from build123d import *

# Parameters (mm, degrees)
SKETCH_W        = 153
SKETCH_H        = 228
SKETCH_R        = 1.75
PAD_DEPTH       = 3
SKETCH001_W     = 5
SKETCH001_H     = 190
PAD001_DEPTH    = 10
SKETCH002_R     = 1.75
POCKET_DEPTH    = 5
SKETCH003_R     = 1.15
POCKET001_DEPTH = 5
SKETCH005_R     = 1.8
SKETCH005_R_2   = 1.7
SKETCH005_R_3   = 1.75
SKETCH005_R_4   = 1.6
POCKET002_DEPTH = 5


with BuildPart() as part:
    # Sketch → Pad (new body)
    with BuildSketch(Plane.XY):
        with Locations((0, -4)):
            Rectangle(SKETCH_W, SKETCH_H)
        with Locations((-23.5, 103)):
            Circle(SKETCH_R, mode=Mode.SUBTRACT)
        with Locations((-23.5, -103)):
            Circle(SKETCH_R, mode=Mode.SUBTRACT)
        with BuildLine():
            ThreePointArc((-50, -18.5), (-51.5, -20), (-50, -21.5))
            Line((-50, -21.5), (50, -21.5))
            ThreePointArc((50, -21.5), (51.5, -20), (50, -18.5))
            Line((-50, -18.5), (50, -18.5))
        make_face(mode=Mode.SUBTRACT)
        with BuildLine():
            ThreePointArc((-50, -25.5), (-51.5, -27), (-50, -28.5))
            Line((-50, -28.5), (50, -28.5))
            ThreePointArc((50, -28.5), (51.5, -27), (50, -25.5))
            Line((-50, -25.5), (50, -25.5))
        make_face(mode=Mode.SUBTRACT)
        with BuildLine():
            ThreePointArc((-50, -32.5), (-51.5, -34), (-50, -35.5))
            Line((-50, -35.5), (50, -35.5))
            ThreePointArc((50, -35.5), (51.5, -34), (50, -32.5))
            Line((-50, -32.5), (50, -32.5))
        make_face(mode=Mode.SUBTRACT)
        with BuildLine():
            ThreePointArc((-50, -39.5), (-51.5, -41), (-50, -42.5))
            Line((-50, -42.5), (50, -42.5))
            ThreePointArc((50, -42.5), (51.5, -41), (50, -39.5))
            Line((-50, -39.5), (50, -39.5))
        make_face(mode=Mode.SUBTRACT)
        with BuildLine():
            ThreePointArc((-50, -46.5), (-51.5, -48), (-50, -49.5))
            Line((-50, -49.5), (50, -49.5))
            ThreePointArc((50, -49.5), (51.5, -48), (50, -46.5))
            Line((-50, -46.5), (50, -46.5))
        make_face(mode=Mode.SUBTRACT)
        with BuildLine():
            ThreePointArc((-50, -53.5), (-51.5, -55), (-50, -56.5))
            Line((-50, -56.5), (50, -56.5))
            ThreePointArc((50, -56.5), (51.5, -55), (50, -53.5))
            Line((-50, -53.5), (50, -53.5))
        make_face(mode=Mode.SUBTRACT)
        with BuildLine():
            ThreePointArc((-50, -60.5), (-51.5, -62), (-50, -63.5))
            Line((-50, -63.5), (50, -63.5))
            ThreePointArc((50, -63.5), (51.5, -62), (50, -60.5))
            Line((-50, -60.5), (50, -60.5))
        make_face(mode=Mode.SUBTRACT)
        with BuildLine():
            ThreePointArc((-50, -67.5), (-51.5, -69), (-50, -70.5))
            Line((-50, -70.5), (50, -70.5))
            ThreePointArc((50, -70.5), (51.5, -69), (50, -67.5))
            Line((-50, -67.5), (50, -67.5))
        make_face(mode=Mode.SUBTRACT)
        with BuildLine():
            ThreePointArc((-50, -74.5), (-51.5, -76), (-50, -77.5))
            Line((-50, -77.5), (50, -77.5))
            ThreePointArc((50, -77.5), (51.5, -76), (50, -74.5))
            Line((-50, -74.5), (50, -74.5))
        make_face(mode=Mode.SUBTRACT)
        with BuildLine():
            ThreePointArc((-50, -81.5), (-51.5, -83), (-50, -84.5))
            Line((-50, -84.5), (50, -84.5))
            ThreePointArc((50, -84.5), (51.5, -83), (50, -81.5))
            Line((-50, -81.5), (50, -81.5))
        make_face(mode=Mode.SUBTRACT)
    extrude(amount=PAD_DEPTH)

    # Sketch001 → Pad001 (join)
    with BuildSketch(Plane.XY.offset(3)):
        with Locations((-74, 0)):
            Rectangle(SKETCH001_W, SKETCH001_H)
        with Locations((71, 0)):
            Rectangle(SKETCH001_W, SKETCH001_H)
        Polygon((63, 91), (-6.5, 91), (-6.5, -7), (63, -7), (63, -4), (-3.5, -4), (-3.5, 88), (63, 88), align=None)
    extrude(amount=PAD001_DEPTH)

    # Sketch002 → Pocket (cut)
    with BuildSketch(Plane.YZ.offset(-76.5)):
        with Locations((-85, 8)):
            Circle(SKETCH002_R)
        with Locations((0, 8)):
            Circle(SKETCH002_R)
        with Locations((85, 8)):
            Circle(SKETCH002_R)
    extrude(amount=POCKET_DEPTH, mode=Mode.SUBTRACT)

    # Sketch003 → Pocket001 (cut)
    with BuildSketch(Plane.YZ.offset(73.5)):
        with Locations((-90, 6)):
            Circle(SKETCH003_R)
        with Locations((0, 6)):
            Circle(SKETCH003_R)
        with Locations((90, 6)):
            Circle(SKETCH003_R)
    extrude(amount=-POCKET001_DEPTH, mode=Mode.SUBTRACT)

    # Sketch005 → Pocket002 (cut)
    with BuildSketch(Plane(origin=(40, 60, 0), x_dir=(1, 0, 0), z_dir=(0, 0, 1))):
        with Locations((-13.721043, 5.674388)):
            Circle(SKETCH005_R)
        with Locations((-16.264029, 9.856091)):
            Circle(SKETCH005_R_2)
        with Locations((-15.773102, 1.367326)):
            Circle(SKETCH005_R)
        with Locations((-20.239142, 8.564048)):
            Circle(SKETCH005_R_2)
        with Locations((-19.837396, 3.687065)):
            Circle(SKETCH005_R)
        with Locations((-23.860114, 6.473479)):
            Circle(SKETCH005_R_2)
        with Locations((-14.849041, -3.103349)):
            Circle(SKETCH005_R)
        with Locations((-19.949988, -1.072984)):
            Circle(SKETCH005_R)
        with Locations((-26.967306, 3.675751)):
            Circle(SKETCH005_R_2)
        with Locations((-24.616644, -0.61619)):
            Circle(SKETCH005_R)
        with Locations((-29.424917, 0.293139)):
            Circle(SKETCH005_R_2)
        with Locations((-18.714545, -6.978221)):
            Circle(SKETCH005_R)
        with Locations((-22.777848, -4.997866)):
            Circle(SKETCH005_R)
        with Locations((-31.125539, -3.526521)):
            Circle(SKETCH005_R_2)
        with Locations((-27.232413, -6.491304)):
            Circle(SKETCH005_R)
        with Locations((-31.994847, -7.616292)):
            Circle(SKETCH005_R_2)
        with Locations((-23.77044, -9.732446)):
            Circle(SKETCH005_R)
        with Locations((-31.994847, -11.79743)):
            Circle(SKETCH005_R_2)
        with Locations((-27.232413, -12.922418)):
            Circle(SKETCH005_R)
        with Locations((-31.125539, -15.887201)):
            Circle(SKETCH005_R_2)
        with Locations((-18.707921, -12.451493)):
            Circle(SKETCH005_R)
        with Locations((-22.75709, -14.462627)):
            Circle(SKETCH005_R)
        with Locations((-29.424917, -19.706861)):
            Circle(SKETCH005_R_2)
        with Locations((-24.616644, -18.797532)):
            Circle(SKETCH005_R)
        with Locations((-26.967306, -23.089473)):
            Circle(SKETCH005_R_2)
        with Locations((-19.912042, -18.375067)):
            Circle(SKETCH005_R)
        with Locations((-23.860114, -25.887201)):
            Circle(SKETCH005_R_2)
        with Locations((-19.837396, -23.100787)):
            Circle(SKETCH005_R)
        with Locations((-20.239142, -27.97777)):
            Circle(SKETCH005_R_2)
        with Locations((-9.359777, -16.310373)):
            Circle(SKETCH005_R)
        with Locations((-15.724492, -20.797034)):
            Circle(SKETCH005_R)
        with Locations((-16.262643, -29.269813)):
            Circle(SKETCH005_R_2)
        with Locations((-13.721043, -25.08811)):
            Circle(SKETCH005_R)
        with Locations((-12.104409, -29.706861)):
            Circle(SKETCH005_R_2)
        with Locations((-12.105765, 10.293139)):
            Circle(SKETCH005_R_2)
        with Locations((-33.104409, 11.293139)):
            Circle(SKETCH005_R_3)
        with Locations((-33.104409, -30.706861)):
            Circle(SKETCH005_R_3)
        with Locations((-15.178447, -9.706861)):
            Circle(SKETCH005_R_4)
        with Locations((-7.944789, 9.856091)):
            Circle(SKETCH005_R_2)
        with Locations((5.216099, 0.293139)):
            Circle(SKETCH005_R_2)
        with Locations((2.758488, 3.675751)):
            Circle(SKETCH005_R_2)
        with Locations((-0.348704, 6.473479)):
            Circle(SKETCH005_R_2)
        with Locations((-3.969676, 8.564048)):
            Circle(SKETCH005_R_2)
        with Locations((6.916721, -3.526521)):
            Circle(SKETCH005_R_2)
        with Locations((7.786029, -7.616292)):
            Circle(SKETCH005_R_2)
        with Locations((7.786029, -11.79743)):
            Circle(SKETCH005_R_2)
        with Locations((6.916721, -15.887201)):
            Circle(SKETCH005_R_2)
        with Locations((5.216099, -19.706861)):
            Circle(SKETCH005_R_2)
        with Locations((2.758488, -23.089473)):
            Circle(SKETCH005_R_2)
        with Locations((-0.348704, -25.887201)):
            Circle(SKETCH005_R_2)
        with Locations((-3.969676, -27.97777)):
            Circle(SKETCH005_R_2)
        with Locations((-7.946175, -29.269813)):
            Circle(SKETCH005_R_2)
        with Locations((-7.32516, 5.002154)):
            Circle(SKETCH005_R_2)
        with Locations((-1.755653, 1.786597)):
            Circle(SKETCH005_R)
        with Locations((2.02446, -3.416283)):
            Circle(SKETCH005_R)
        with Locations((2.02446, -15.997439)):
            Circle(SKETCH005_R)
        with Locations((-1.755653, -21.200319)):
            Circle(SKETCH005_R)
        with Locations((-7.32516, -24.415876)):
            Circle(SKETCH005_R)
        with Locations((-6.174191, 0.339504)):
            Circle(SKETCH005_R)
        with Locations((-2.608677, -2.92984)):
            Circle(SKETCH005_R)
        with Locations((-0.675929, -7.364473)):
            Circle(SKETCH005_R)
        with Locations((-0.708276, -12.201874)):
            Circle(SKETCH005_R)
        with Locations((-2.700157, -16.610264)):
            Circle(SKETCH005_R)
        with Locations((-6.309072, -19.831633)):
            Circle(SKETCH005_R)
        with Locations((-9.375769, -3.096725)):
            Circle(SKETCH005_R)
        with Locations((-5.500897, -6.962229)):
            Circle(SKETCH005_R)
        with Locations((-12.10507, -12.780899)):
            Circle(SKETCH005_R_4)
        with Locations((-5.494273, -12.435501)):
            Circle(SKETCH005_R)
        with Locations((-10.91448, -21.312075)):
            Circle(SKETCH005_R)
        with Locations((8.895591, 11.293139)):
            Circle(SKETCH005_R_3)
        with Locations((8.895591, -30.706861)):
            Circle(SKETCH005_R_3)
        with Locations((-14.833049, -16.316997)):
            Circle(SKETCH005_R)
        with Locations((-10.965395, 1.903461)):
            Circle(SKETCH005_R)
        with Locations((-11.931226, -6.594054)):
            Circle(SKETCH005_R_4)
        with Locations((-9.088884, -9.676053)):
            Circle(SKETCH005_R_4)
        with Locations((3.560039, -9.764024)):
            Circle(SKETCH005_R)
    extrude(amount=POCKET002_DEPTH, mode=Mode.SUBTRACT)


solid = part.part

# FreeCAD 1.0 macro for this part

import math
import FreeCAD as App
import Part
import Sketcher
from FreeCAD import Vector
Q = App.Units.Quantity


def add_polygon(sketch, points):
    """Adds a closed chain of lines whose ends are joined by coincident constraints."""
    first, n = sketch.GeometryCount, len(points)
    for a, b in zip(points, points[1:] + points[:1]):
        sketch.addGeometry(Part.LineSegment(App.Vector(*a, 0), App.Vector(*b, 0)), False)
    for i in range(n):
        sketch.addConstraint(Sketcher.Constraint("Coincident", first + i, 2, first + (i + 1) % n, 1))

doc = App.newDocument("Part")
body = doc.addObject("PartDesign::Body", "Body")

sketch1 = body.newObject("Sketcher::SketchObject", "Sketch")
sketch1.AttachmentSupport = (doc.getObject("XY_Plane"), [""])
sketch1.MapMode = "FlatFace"
add_polygon(sketch1, [(-76.5, 110), (-76.5, -118), (76.5, -118), (76.5, 110)])
sketch1.addGeometry(Part.Circle(Vector(-23.5, -103, 0), Vector(0, 0, 1), 1.75), False)
sketch1.addGeometry(Part.ArcOfCircle(Part.Circle(Vector(-50, -83, 0), Vector(0, 0, 1), 1.5), math.radians(90), math.radians(270)), False)
sketch1.addGeometry(Part.LineSegment(Vector(-50, -81.5, 0), Vector(50, -81.5, 0)), False)
sketch1.addGeometry(Part.ArcOfCircle(Part.Circle(Vector(50, -83, 0), Vector(0, 0, 1), 1.5), math.radians(-90), math.radians(90)), False)
sketch1.addGeometry(Part.LineSegment(Vector(50, -84.5, 0), Vector(-50, -84.5, 0)), False)
sketch1.addGeometry(Part.ArcOfCircle(Part.Circle(Vector(-50, -76, 0), Vector(0, 0, 1), 1.5), math.radians(90), math.radians(270)), False)
sketch1.addGeometry(Part.LineSegment(Vector(-50, -74.5, 0), Vector(50, -74.5, 0)), False)
sketch1.addGeometry(Part.ArcOfCircle(Part.Circle(Vector(50, -76, 0), Vector(0, 0, 1), 1.5), math.radians(-90), math.radians(90)), False)
sketch1.addGeometry(Part.LineSegment(Vector(50, -77.5, 0), Vector(-50, -77.5, 0)), False)
sketch1.addGeometry(Part.ArcOfCircle(Part.Circle(Vector(-50, -69, 0), Vector(0, 0, 1), 1.5), math.radians(90), math.radians(270)), False)
sketch1.addGeometry(Part.LineSegment(Vector(-50, -67.5, 0), Vector(50, -67.5, 0)), False)
sketch1.addGeometry(Part.ArcOfCircle(Part.Circle(Vector(50, -69, 0), Vector(0, 0, 1), 1.5), math.radians(-90), math.radians(90)), False)
sketch1.addGeometry(Part.LineSegment(Vector(50, -70.5, 0), Vector(-50, -70.5, 0)), False)
sketch1.addGeometry(Part.ArcOfCircle(Part.Circle(Vector(-50, -62, 0), Vector(0, 0, 1), 1.5), math.radians(90), math.radians(270)), False)
sketch1.addGeometry(Part.LineSegment(Vector(-50, -60.5, 0), Vector(50, -60.5, 0)), False)
sketch1.addGeometry(Part.ArcOfCircle(Part.Circle(Vector(50, -62, 0), Vector(0, 0, 1), 1.5), math.radians(-90), math.radians(90)), False)
sketch1.addGeometry(Part.LineSegment(Vector(50, -63.5, 0), Vector(-50, -63.5, 0)), False)
sketch1.addGeometry(Part.ArcOfCircle(Part.Circle(Vector(-50, -55, 0), Vector(0, 0, 1), 1.5), math.radians(90), math.radians(270)), False)
sketch1.addGeometry(Part.LineSegment(Vector(-50, -53.5, 0), Vector(50, -53.5, 0)), False)
sketch1.addGeometry(Part.ArcOfCircle(Part.Circle(Vector(50, -55, 0), Vector(0, 0, 1), 1.5), math.radians(-90), math.radians(90)), False)
sketch1.addGeometry(Part.LineSegment(Vector(50, -56.5, 0), Vector(-50, -56.5, 0)), False)
sketch1.addGeometry(Part.ArcOfCircle(Part.Circle(Vector(-50, -48, 0), Vector(0, 0, 1), 1.5), math.radians(90), math.radians(270)), False)
sketch1.addGeometry(Part.LineSegment(Vector(-50, -46.5, 0), Vector(50, -46.5, 0)), False)
sketch1.addGeometry(Part.ArcOfCircle(Part.Circle(Vector(50, -48, 0), Vector(0, 0, 1), 1.5), math.radians(-90), math.radians(90)), False)
sketch1.addGeometry(Part.LineSegment(Vector(50, -49.5, 0), Vector(-50, -49.5, 0)), False)
sketch1.addGeometry(Part.ArcOfCircle(Part.Circle(Vector(-50, -41, 0), Vector(0, 0, 1), 1.5), math.radians(90), math.radians(270)), False)
sketch1.addGeometry(Part.LineSegment(Vector(-50, -39.5, 0), Vector(50, -39.5, 0)), False)
sketch1.addGeometry(Part.ArcOfCircle(Part.Circle(Vector(50, -41, 0), Vector(0, 0, 1), 1.5), math.radians(-90), math.radians(90)), False)
sketch1.addGeometry(Part.LineSegment(Vector(50, -42.5, 0), Vector(-50, -42.5, 0)), False)
sketch1.addGeometry(Part.ArcOfCircle(Part.Circle(Vector(-50, -34, 0), Vector(0, 0, 1), 1.5), math.radians(90), math.radians(270)), False)
sketch1.addGeometry(Part.LineSegment(Vector(-50, -32.5, 0), Vector(50, -32.5, 0)), False)
sketch1.addGeometry(Part.ArcOfCircle(Part.Circle(Vector(50, -34, 0), Vector(0, 0, 1), 1.5), math.radians(-90), math.radians(90)), False)
sketch1.addGeometry(Part.LineSegment(Vector(50, -35.5, 0), Vector(-50, -35.5, 0)), False)
sketch1.addGeometry(Part.ArcOfCircle(Part.Circle(Vector(-50, -27, 0), Vector(0, 0, 1), 1.5), math.radians(90), math.radians(270)), False)
sketch1.addGeometry(Part.LineSegment(Vector(-50, -25.5, 0), Vector(50, -25.5, 0)), False)
sketch1.addGeometry(Part.ArcOfCircle(Part.Circle(Vector(50, -27, 0), Vector(0, 0, 1), 1.5), math.radians(-90), math.radians(90)), False)
sketch1.addGeometry(Part.LineSegment(Vector(50, -28.5, 0), Vector(-50, -28.5, 0)), False)
sketch1.addGeometry(Part.ArcOfCircle(Part.Circle(Vector(-50, -20, 0), Vector(0, 0, 1), 1.5), math.radians(90), math.radians(270)), False)
sketch1.addGeometry(Part.LineSegment(Vector(-50, -18.5, 0), Vector(50, -18.5, 0)), False)
sketch1.addGeometry(Part.ArcOfCircle(Part.Circle(Vector(50, -20, 0), Vector(0, 0, 1), 1.5), math.radians(-90), math.radians(90)), False)
sketch1.addGeometry(Part.LineSegment(Vector(50, -21.5, 0), Vector(-50, -21.5, 0)), False)
sketch1.addGeometry(Part.Circle(Vector(-23.5, 103, 0), Vector(0, 0, 1), 1.75), False)
sketch1.addConstraint(Sketcher.Constraint("Tangent", 5, 1, 6, 1))
sketch1.addConstraint(Sketcher.Constraint("Tangent", 6, 2, 7, 2))
sketch1.addConstraint(Sketcher.Constraint("Tangent", 7, 1, 8, 1))
sketch1.addConstraint(Sketcher.Constraint("Tangent", 8, 2, 5, 2))
sketch1.addConstraint(Sketcher.Constraint("Tangent", 9, 1, 10, 1))
sketch1.addConstraint(Sketcher.Constraint("Tangent", 10, 2, 11, 2))
sketch1.addConstraint(Sketcher.Constraint("Tangent", 11, 1, 12, 1))
sketch1.addConstraint(Sketcher.Constraint("Tangent", 12, 2, 9, 2))
sketch1.addConstraint(Sketcher.Constraint("Tangent", 13, 1, 14, 1))
sketch1.addConstraint(Sketcher.Constraint("Tangent", 14, 2, 15, 2))
sketch1.addConstraint(Sketcher.Constraint("Tangent", 15, 1, 16, 1))
sketch1.addConstraint(Sketcher.Constraint("Tangent", 16, 2, 13, 2))
sketch1.addConstraint(Sketcher.Constraint("Tangent", 17, 1, 18, 1))
sketch1.addConstraint(Sketcher.Constraint("Tangent", 18, 2, 19, 2))
sketch1.addConstraint(Sketcher.Constraint("Tangent", 19, 1, 20, 1))
sketch1.addConstraint(Sketcher.Constraint("Tangent", 20, 2, 17, 2))
sketch1.addConstraint(Sketcher.Constraint("Tangent", 21, 1, 22, 1))
sketch1.addConstraint(Sketcher.Constraint("Tangent", 22, 2, 23, 2))
sketch1.addConstraint(Sketcher.Constraint("Tangent", 23, 1, 24, 1))
sketch1.addConstraint(Sketcher.Constraint("Tangent", 24, 2, 21, 2))
sketch1.addConstraint(Sketcher.Constraint("Tangent", 25, 1, 26, 1))
sketch1.addConstraint(Sketcher.Constraint("Tangent", 26, 2, 27, 2))
sketch1.addConstraint(Sketcher.Constraint("Tangent", 27, 1, 28, 1))
sketch1.addConstraint(Sketcher.Constraint("Tangent", 28, 2, 25, 2))
sketch1.addConstraint(Sketcher.Constraint("Tangent", 29, 1, 30, 1))
sketch1.addConstraint(Sketcher.Constraint("Tangent", 30, 2, 31, 2))
sketch1.addConstraint(Sketcher.Constraint("Tangent", 31, 1, 32, 1))
sketch1.addConstraint(Sketcher.Constraint("Tangent", 32, 2, 29, 2))
sketch1.addConstraint(Sketcher.Constraint("Tangent", 33, 1, 34, 1))
sketch1.addConstraint(Sketcher.Constraint("Tangent", 34, 2, 35, 2))
sketch1.addConstraint(Sketcher.Constraint("Tangent", 35, 1, 36, 1))
sketch1.addConstraint(Sketcher.Constraint("Tangent", 36, 2, 33, 2))
sketch1.addConstraint(Sketcher.Constraint("Tangent", 37, 1, 38, 1))
sketch1.addConstraint(Sketcher.Constraint("Tangent", 38, 2, 39, 2))
sketch1.addConstraint(Sketcher.Constraint("Tangent", 39, 1, 40, 1))
sketch1.addConstraint(Sketcher.Constraint("Tangent", 40, 2, 37, 2))
sketch1.addConstraint(Sketcher.Constraint("Tangent", 41, 1, 42, 1))
sketch1.addConstraint(Sketcher.Constraint("Tangent", 42, 2, 43, 2))
sketch1.addConstraint(Sketcher.Constraint("Tangent", 43, 1, 44, 1))
sketch1.addConstraint(Sketcher.Constraint("Tangent", 44, 2, 41, 2))
sketch1.addConstraint(Sketcher.Constraint("Vertical", 0))
sketch1.addConstraint(Sketcher.Constraint("Horizontal", 1))
sketch1.addConstraint(Sketcher.Constraint("Vertical", 2))
sketch1.addConstraint(Sketcher.Constraint("Horizontal", 3))
sketch1.addConstraint(Sketcher.Constraint("Horizontal", 6))
sketch1.addConstraint(Sketcher.Constraint("Horizontal", 8))
sketch1.addConstraint(Sketcher.Constraint("Horizontal", 10))
sketch1.addConstraint(Sketcher.Constraint("Horizontal", 12))
sketch1.addConstraint(Sketcher.Constraint("Horizontal", 14))
sketch1.addConstraint(Sketcher.Constraint("Horizontal", 16))
sketch1.addConstraint(Sketcher.Constraint("Horizontal", 18))
sketch1.addConstraint(Sketcher.Constraint("Horizontal", 20))
sketch1.addConstraint(Sketcher.Constraint("Horizontal", 22))
sketch1.addConstraint(Sketcher.Constraint("Horizontal", 24))
sketch1.addConstraint(Sketcher.Constraint("Horizontal", 26))
sketch1.addConstraint(Sketcher.Constraint("Horizontal", 28))
sketch1.addConstraint(Sketcher.Constraint("Horizontal", 30))
sketch1.addConstraint(Sketcher.Constraint("Horizontal", 32))
sketch1.addConstraint(Sketcher.Constraint("Horizontal", 34))
sketch1.addConstraint(Sketcher.Constraint("Horizontal", 36))
sketch1.addConstraint(Sketcher.Constraint("Horizontal", 38))
sketch1.addConstraint(Sketcher.Constraint("Horizontal", 40))
sketch1.addConstraint(Sketcher.Constraint("Horizontal", 42))
sketch1.addConstraint(Sketcher.Constraint("Horizontal", 44))
sketch1.addConstraint(Sketcher.Constraint("Equal", 7, 9))
sketch1.addConstraint(Sketcher.Constraint("Equal", 11, 13))
sketch1.addConstraint(Sketcher.Constraint("Equal", 15, 17))
sketch1.addConstraint(Sketcher.Constraint("Equal", 19, 21))
sketch1.addConstraint(Sketcher.Constraint("Equal", 23, 25))
sketch1.addConstraint(Sketcher.Constraint("Equal", 27, 29))
sketch1.addConstraint(Sketcher.Constraint("Equal", 31, 33))
sketch1.addConstraint(Sketcher.Constraint("Equal", 35, 37))
sketch1.addConstraint(Sketcher.Constraint("Equal", 39, 41))
sketch1.addConstraint(Sketcher.Constraint("Equal", 4, 45))
sketch1.addConstraint(Sketcher.Constraint("Symmetric", 4, 3, 45, 3, -1))
sketch1.addConstraint(Sketcher.Constraint("Vertical", 5, 3, 9, 3))
sketch1.addConstraint(Sketcher.Constraint("Vertical", 7, 3, 11, 3))
sketch1.addConstraint(Sketcher.Constraint("Vertical", 9, 3, 13, 3))
sketch1.addConstraint(Sketcher.Constraint("Vertical", 11, 3, 15, 3))
sketch1.addConstraint(Sketcher.Constraint("Vertical", 13, 3, 17, 3))
sketch1.addConstraint(Sketcher.Constraint("Vertical", 15, 3, 19, 3))
sketch1.addConstraint(Sketcher.Constraint("Vertical", 17, 3, 21, 3))
sketch1.addConstraint(Sketcher.Constraint("Vertical", 19, 3, 23, 3))
sketch1.addConstraint(Sketcher.Constraint("Vertical", 21, 3, 25, 3))
sketch1.addConstraint(Sketcher.Constraint("Vertical", 23, 3, 27, 3))
sketch1.addConstraint(Sketcher.Constraint("Vertical", 25, 3, 29, 3))
sketch1.addConstraint(Sketcher.Constraint("Vertical", 27, 3, 31, 3))
sketch1.addConstraint(Sketcher.Constraint("Vertical", 29, 3, 33, 3))
sketch1.addConstraint(Sketcher.Constraint("Vertical", 31, 3, 35, 3))
sketch1.addConstraint(Sketcher.Constraint("Vertical", 33, 3, 37, 3))
sketch1.addConstraint(Sketcher.Constraint("Vertical", 35, 3, 39, 3))
sketch1.addConstraint(Sketcher.Constraint("Vertical", 37, 3, 41, 3))
sketch1.addConstraint(Sketcher.Constraint("Vertical", 39, 3, 43, 3))
sketch1.addConstraint(Sketcher.Constraint("Diameter", 4, Q("3.5 mm")))
sketch1.addConstraint(Sketcher.Constraint("Radius", 5, Q("1.5 mm")))
sketch1.addConstraint(Sketcher.Constraint("DistanceX", 1, 1, 1, 2, Q("153 mm")))
sketch1.addConstraint(Sketcher.Constraint("DistanceX", 6, 1, 6, 2, Q("100 mm")))
sketch1.addConstraint(Sketcher.Constraint("DistanceY", 0, 2, 0, 1, Q("228 mm")))
sketch1.addConstraint(Sketcher.Constraint("DistanceY", 4, 3, -1, 1, Q("103 mm")))
sketch1.addConstraint(Sketcher.Constraint("DistanceX", 5, 3, -1, 1, Q("50 mm")))
sketch1.addConstraint(Sketcher.Constraint("DistanceY", 5, 3, -1, 1, Q("83 mm")))
sketch1.addConstraint(Sketcher.Constraint("DistanceY", 9, 3, -1, 1, Q("76 mm")))
sketch1.addConstraint(Sketcher.Constraint("DistanceY", 13, 3, -1, 1, Q("69 mm")))
sketch1.addConstraint(Sketcher.Constraint("DistanceY", 17, 3, -1, 1, Q("62 mm")))
sketch1.addConstraint(Sketcher.Constraint("DistanceY", 21, 3, -1, 1, Q("55 mm")))
sketch1.addConstraint(Sketcher.Constraint("DistanceY", 25, 3, -1, 1, Q("48 mm")))
sketch1.addConstraint(Sketcher.Constraint("DistanceY", 29, 3, -1, 1, Q("41 mm")))
sketch1.addConstraint(Sketcher.Constraint("DistanceY", 33, 3, -1, 1, Q("34 mm")))
sketch1.addConstraint(Sketcher.Constraint("DistanceY", 37, 3, -1, 1, Q("27 mm")))
sketch1.addConstraint(Sketcher.Constraint("DistanceY", 41, 3, -1, 1, Q("20 mm")))
sketch1.addConstraint(Sketcher.Constraint("DistanceY", 0, 2, -1, 1, Q("118 mm")))
sketch1.addConstraint(Sketcher.Constraint("DistanceX", 4, 3, -1, 1, Q("23.5 mm")))
sketch1.addConstraint(Sketcher.Constraint("DistanceX", 0, 2, -1, 1, Q("76.5 mm")))
pad1 = body.newObject("PartDesign::Pad", "Pad")
pad1.Profile = sketch1
pad1.Length = 3

sketch2 = body.newObject("Sketcher::SketchObject", "Sketch001")
sketch2.AttachmentSupport = (doc.getObject("XY_Plane"), [""])
sketch2.MapMode = "FlatFace"
sketch2.AttachmentOffset = App.Placement(Vector(0, 0, 3), App.Rotation())
add_polygon(sketch2, [(-76.5, 95), (-76.5, -95), (-71.5, -95), (-71.5, 95)])
add_polygon(sketch2, [(68.5, 95), (68.5, -95), (73.5, -95), (73.5, 95)])
add_polygon(sketch2, [(63, 91), (-6.5, 91), (-6.5, -7), (63, -7), (63, -4), (-3.5, -4), (-3.5, 88), (63, 88)])
sketch2.addConstraint(Sketcher.Constraint("Vertical", 0))
sketch2.addConstraint(Sketcher.Constraint("Horizontal", 1))
sketch2.addConstraint(Sketcher.Constraint("Vertical", 2))
sketch2.addConstraint(Sketcher.Constraint("Horizontal", 3))
sketch2.addConstraint(Sketcher.Constraint("Vertical", 4))
sketch2.addConstraint(Sketcher.Constraint("Horizontal", 5))
sketch2.addConstraint(Sketcher.Constraint("Vertical", 6))
sketch2.addConstraint(Sketcher.Constraint("Horizontal", 7))
sketch2.addConstraint(Sketcher.Constraint("Horizontal", 8))
sketch2.addConstraint(Sketcher.Constraint("Vertical", 9))
sketch2.addConstraint(Sketcher.Constraint("Horizontal", 10))
sketch2.addConstraint(Sketcher.Constraint("Vertical", 11))
sketch2.addConstraint(Sketcher.Constraint("Horizontal", 12))
sketch2.addConstraint(Sketcher.Constraint("Vertical", 13))
sketch2.addConstraint(Sketcher.Constraint("Horizontal", 14))
sketch2.addConstraint(Sketcher.Constraint("Vertical", 15))
sketch2.addConstraint(Sketcher.Constraint("Horizontal", 1, 2, 4, 2))
sketch2.addConstraint(Sketcher.Constraint("Horizontal", 3, 2, 6, 2))
sketch2.addConstraint(Sketcher.Constraint("Vertical", 11, 2, 14, 2))
sketch2.addConstraint(Sketcher.Constraint("Equal", 3, 5))
sketch2.addConstraint(Sketcher.Constraint("Equal", 11, 15))
sketch2.addConstraint(Sketcher.Constraint("DistanceX", 1, 1, 1, 2, Q("5 mm")))
sketch2.addConstraint(Sketcher.Constraint("DistanceY", 0, 2, 0, 1, Q("190 mm")))
sketch2.addConstraint(Sketcher.Constraint("DistanceY", 9, 2, 9, 1, Q("98 mm")))
sketch2.addConstraint(Sketcher.Constraint("DistanceY", 11, 1, 11, 2, Q("3 mm")))
sketch2.addConstraint(Sketcher.Constraint("DistanceX", 8, 2, 8, 1, Q("69.5 mm")))
sketch2.addConstraint(Sketcher.Constraint("DistanceX", 12, 2, 12, 1, Q("66.5 mm")))
sketch2.addConstraint(Sketcher.Constraint("DistanceY", 0, 2, -1, 1, Q("95 mm")))
sketch2.addConstraint(Sketcher.Constraint("DistanceY", -1, 1, 8, 2, Q("91 mm")))
sketch2.addConstraint(Sketcher.Constraint("DistanceX", -1, 1, 10, 2, Q("63 mm")))
sketch2.addConstraint(Sketcher.Constraint("DistanceX", 1, 2, 4, 2, Q("140 mm")))
sketch2.addConstraint(Sketcher.Constraint("DistanceX", 2, 2, 8, 2, Q("65 mm")))
pad2 = body.newObject("PartDesign::Pad", "Pad001")
pad2.Profile = sketch2
pad2.Length = 10

sketch3 = body.newObject("Sketcher::SketchObject", "Sketch002")
sketch3.AttachmentSupport = (doc.getObject("YZ_Plane"), [""])
sketch3.MapMode = "FlatFace"
sketch3.AttachmentOffset = App.Placement(Vector(0, 0, -76.5), App.Rotation())
sketch3.addGeometry(Part.Circle(Vector(-85, 8, 0), Vector(0, 0, 1), 1.75), False)
sketch3.addGeometry(Part.Circle(Vector(0, 8, 0), Vector(0, 0, 1), 1.75), False)
sketch3.addGeometry(Part.Circle(Vector(85, 8, 0), Vector(0, 0, 1), 1.75), False)
sketch3.addConstraint(Sketcher.Constraint("Equal", 0, 1))
sketch3.addConstraint(Sketcher.Constraint("Equal", 1, 2))
sketch3.addConstraint(Sketcher.Constraint("Symmetric", 0, 3, 2, 3, -2))
sketch3.addConstraint(Sketcher.Constraint("PointOnObject", 1, 3, -2))
sketch3.addConstraint(Sketcher.Constraint("Horizontal", 0, 3, 1, 3))
sketch3.addConstraint(Sketcher.Constraint("Diameter", 0, Q("3.5 mm")))
sketch3.addConstraint(Sketcher.Constraint("DistanceX", 0, 3, -1, 1, Q("85 mm")))
sketch3.addConstraint(Sketcher.Constraint("DistanceY", -1, 1, 0, 3, Q("8 mm")))
pocket1 = body.newObject("PartDesign::Pocket", "Pocket")
pocket1.Profile = sketch3
pocket1.Length = 5
pocket1.Reversed = True

sketch4 = body.newObject("Sketcher::SketchObject", "Sketch003")
sketch4.AttachmentSupport = (doc.getObject("YZ_Plane"), [""])
sketch4.MapMode = "FlatFace"
sketch4.AttachmentOffset = App.Placement(Vector(0, 0, 73.5), App.Rotation())
sketch4.addGeometry(Part.Circle(Vector(-90, 6, 0), Vector(0, 0, 1), 1.15), False)
sketch4.addGeometry(Part.Circle(Vector(0, 6, 0), Vector(0, 0, 1), 1.15), False)
sketch4.addGeometry(Part.Circle(Vector(90, 6, 0), Vector(0, 0, 1), 1.15), False)
sketch4.addConstraint(Sketcher.Constraint("Equal", 0, 1))
sketch4.addConstraint(Sketcher.Constraint("Equal", 1, 2))
sketch4.addConstraint(Sketcher.Constraint("Symmetric", 0, 3, 2, 3, -2))
sketch4.addConstraint(Sketcher.Constraint("PointOnObject", 1, 3, -2))
sketch4.addConstraint(Sketcher.Constraint("Horizontal", 0, 3, 1, 3))
sketch4.addConstraint(Sketcher.Constraint("Diameter", 0, Q("2.3 mm")))
sketch4.addConstraint(Sketcher.Constraint("DistanceX", 0, 3, -1, 1, Q("90 mm")))
sketch4.addConstraint(Sketcher.Constraint("DistanceY", -1, 1, 0, 3, Q("6 mm")))
pocket2 = body.newObject("PartDesign::Pocket", "Pocket001")
pocket2.Profile = sketch4
pocket2.Length = 5

sketch5 = body.newObject("Sketcher::SketchObject", "Sketch004")
sketch5.AttachmentSupport = (doc.getObject("XY_Plane"), [""])
sketch5.MapMode = "FlatFace"
sketch5.addGeometry(Part.Circle(Vector(26.278957, 65.674388, 0), Vector(0, 0, 1), 1.8), False)
sketch5.addGeometry(Part.Circle(Vector(23.735971, 69.856091, 0), Vector(0, 0, 1), 1.7), False)
sketch5.addGeometry(Part.Circle(Vector(24.226898, 61.367326, 0), Vector(0, 0, 1), 1.8), False)
sketch5.addGeometry(Part.Circle(Vector(19.760858, 68.564048, 0), Vector(0, 0, 1), 1.7), False)
sketch5.addGeometry(Part.Circle(Vector(20.162604, 63.687065, 0), Vector(0, 0, 1), 1.8), False)
sketch5.addGeometry(Part.Circle(Vector(16.139886, 66.473479, 0), Vector(0, 0, 1), 1.7), False)
sketch5.addGeometry(Part.Circle(Vector(25.150959, 56.896651, 0), Vector(0, 0, 1), 1.8), False)
sketch5.addGeometry(Part.Circle(Vector(20.050012, 58.927016, 0), Vector(0, 0, 1), 1.8), False)
sketch5.addGeometry(Part.Circle(Vector(13.032694, 63.675751, 0), Vector(0, 0, 1), 1.7), False)
sketch5.addGeometry(Part.Circle(Vector(15.383356, 59.38381, 0), Vector(0, 0, 1), 1.8), False)
sketch5.addGeometry(Part.Circle(Vector(10.575083, 60.293139, 0), Vector(0, 0, 1), 1.7), False)
sketch5.addGeometry(Part.Circle(Vector(21.285455, 53.021779, 0), Vector(0, 0, 1), 1.8), False)
sketch5.addGeometry(Part.Circle(Vector(17.222152, 55.002134, 0), Vector(0, 0, 1), 1.8), False)
sketch5.addGeometry(Part.Circle(Vector(8.874461, 56.473479, 0), Vector(0, 0, 1), 1.7), False)
sketch5.addGeometry(Part.Circle(Vector(12.767587, 53.508696, 0), Vector(0, 0, 1), 1.8), False)
sketch5.addGeometry(Part.Circle(Vector(8.005153, 52.383708, 0), Vector(0, 0, 1), 1.7), False)
sketch5.addGeometry(Part.Circle(Vector(16.22956, 50.267554, 0), Vector(0, 0, 1), 1.8), False)
sketch5.addGeometry(Part.Circle(Vector(8.005153, 48.20257, 0), Vector(0, 0, 1), 1.7), False)
sketch5.addGeometry(Part.Circle(Vector(12.767587, 47.077582, 0), Vector(0, 0, 1), 1.8), False)
sketch5.addGeometry(Part.Circle(Vector(8.874461, 44.112799, 0), Vector(0, 0, 1), 1.7), False)
sketch5.addGeometry(Part.Circle(Vector(21.292079, 47.548507, 0), Vector(0, 0, 1), 1.8), False)
sketch5.addGeometry(Part.Circle(Vector(17.24291, 45.537373, 0), Vector(0, 0, 1), 1.8), False)
sketch5.addGeometry(Part.Circle(Vector(10.575083, 40.293139, 0), Vector(0, 0, 1), 1.7), False)
sketch5.addGeometry(Part.Circle(Vector(15.383356, 41.202468, 0), Vector(0, 0, 1), 1.8), False)
sketch5.addGeometry(Part.Circle(Vector(13.032694, 36.910527, 0), Vector(0, 0, 1), 1.7), False)
sketch5.addGeometry(Part.Circle(Vector(20.087958, 41.624933, 0), Vector(0, 0, 1), 1.8), False)
sketch5.addGeometry(Part.Circle(Vector(16.139886, 34.112799, 0), Vector(0, 0, 1), 1.7), False)
sketch5.addGeometry(Part.Circle(Vector(20.162604, 36.899213, 0), Vector(0, 0, 1), 1.8), False)
sketch5.addGeometry(Part.Circle(Vector(19.760858, 32.02223, 0), Vector(0, 0, 1), 1.7), False)
sketch5.addGeometry(Part.Circle(Vector(30.640223, 43.689627, 0), Vector(0, 0, 1), 1.8), False)
sketch5.addGeometry(Part.Circle(Vector(24.275508, 39.202966, 0), Vector(0, 0, 1), 1.8), False)
sketch5.addGeometry(Part.Circle(Vector(23.737357, 30.730187, 0), Vector(0, 0, 1), 1.7), False)
sketch5.addGeometry(Part.Circle(Vector(26.278957, 34.91189, 0), Vector(0, 0, 1), 1.8), False)
sketch5.addGeometry(Part.Circle(Vector(27.895591, 30.293139, 0), Vector(0, 0, 1), 1.7), False)
sketch5.addGeometry(Part.Circle(Vector(27.894235, 70.293139, 0), Vector(0, 0, 1), 1.7), False)
sketch5.addGeometry(Part.Circle(Vector(6.895591, 71.293139, 0), Vector(0, 0, 1), 1.75), False)
sketch5.addGeometry(Part.Circle(Vector(6.895591, 29.293139, 0), Vector(0, 0, 1), 1.75), False)
sketch5.addGeometry(Part.Circle(Vector(24.821553, 50.293139, 0), Vector(0, 0, 1), 1.6), False)
sketch5.addGeometry(Part.Circle(Vector(32.055211, 69.856091, 0), Vector(0, 0, 1), 1.7), False)
sketch5.addGeometry(Part.Circle(Vector(45.216099, 60.293139, 0), Vector(0, 0, 1), 1.7), False)
sketch5.addGeometry(Part.Circle(Vector(42.758488, 63.675751, 0), Vector(0, 0, 1), 1.7), False)
sketch5.addGeometry(Part.Circle(Vector(39.651296, 66.473479, 0), Vector(0, 0, 1), 1.7), False)
sketch5.addGeometry(Part.Circle(Vector(36.030324, 68.564048, 0), Vector(0, 0, 1), 1.7), False)
sketch5.addGeometry(Part.Circle(Vector(46.916721, 56.473479, 0), Vector(0, 0, 1), 1.7), False)
sketch5.addGeometry(Part.Circle(Vector(47.786029, 52.383708, 0), Vector(0, 0, 1), 1.7), False)
sketch5.addGeometry(Part.Circle(Vector(47.786029, 48.20257, 0), Vector(0, 0, 1), 1.7), False)
sketch5.addGeometry(Part.Circle(Vector(46.916721, 44.112799, 0), Vector(0, 0, 1), 1.7), False)
sketch5.addGeometry(Part.Circle(Vector(45.216099, 40.293139, 0), Vector(0, 0, 1), 1.7), False)
sketch5.addGeometry(Part.Circle(Vector(42.758488, 36.910527, 0), Vector(0, 0, 1), 1.7), False)
sketch5.addGeometry(Part.Circle(Vector(39.651296, 34.112799, 0), Vector(0, 0, 1), 1.7), False)
sketch5.addGeometry(Part.Circle(Vector(36.030324, 32.02223, 0), Vector(0, 0, 1), 1.7), False)
sketch5.addGeometry(Part.Circle(Vector(32.053825, 30.730187, 0), Vector(0, 0, 1), 1.7), False)
sketch5.addGeometry(Part.Circle(Vector(32.67484, 65.002154, 0), Vector(0, 0, 1), 1.7), False)
sketch5.addGeometry(Part.Circle(Vector(38.244347, 61.786597, 0), Vector(0, 0, 1), 1.8), False)
sketch5.addGeometry(Part.Circle(Vector(42.02446, 56.583717, 0), Vector(0, 0, 1), 1.8), False)
sketch5.addGeometry(Part.Circle(Vector(42.02446, 44.002561, 0), Vector(0, 0, 1), 1.8), False)
sketch5.addGeometry(Part.Circle(Vector(38.244347, 38.799681, 0), Vector(0, 0, 1), 1.8), False)
sketch5.addGeometry(Part.Circle(Vector(32.67484, 35.584124, 0), Vector(0, 0, 1), 1.8), False)
sketch5.addGeometry(Part.Circle(Vector(33.825809, 60.339504, 0), Vector(0, 0, 1), 1.8), False)
sketch5.addGeometry(Part.Circle(Vector(37.391323, 57.07016, 0), Vector(0, 0, 1), 1.8), False)
sketch5.addGeometry(Part.Circle(Vector(39.324071, 52.635527, 0), Vector(0, 0, 1), 1.8), False)
sketch5.addGeometry(Part.Circle(Vector(39.291724, 47.798126, 0), Vector(0, 0, 1), 1.8), False)
sketch5.addGeometry(Part.Circle(Vector(37.299843, 43.389736, 0), Vector(0, 0, 1), 1.8), False)
sketch5.addGeometry(Part.Circle(Vector(33.690928, 40.168367, 0), Vector(0, 0, 1), 1.8), False)
sketch5.addGeometry(Part.Circle(Vector(30.624231, 56.903275, 0), Vector(0, 0, 1), 1.8), False)
sketch5.addGeometry(Part.Circle(Vector(34.499103, 53.037771, 0), Vector(0, 0, 1), 1.8), False)
sketch5.addGeometry(Part.Circle(Vector(27.89493, 47.219101, 0), Vector(0, 0, 1), 1.6), False)
sketch5.addGeometry(Part.Circle(Vector(34.505727, 47.564499, 0), Vector(0, 0, 1), 1.8), False)
sketch5.addGeometry(Part.Circle(Vector(29.08552, 38.687925, 0), Vector(0, 0, 1), 1.8), False)
sketch5.addGeometry(Part.Circle(Vector(48.895591, 71.293139, 0), Vector(0, 0, 1), 1.75), False)
sketch5.addGeometry(Part.Circle(Vector(48.895591, 29.293139, 0), Vector(0, 0, 1), 1.75), False)
sketch5.addGeometry(Part.Circle(Vector(25.166951, 43.683003, 0), Vector(0, 0, 1), 1.8), False)
sketch5.addGeometry(Part.Circle(Vector(29.034605, 61.903461, 0), Vector(0, 0, 1), 1.8), False)
sketch5.addGeometry(Part.Circle(Vector(28.068774, 53.405946, 0), Vector(0, 0, 1), 1.6), False)
sketch5.addGeometry(Part.Circle(Vector(30.911116, 50.323947, 0), Vector(0, 0, 1), 1.6), False)
sketch5.addGeometry(Part.Circle(Vector(43.560039, 50.235976, 0), Vector(0, 0, 1), 1.8), False)
sketch5.addConstraint(Sketcher.Constraint("Equal", 0, 2))
sketch5.addConstraint(Sketcher.Constraint("Equal", 1, 3))
sketch5.addConstraint(Sketcher.Constraint("Equal", 2, 4))
sketch5.addConstraint(Sketcher.Constraint("Equal", 3, 5))
sketch5.addConstraint(Sketcher.Constraint("Equal", 4, 6))
sketch5.addConstraint(Sketcher.Constraint("Equal", 6, 7))
sketch5.addConstraint(Sketcher.Constraint("Equal", 5, 8))
sketch5.addConstraint(Sketcher.Constraint("Equal", 7, 9))
sketch5.addConstraint(Sketcher.Constraint("Equal", 8, 10))
sketch5.addConstraint(Sketcher.Constraint("Equal", 9, 11))
sketch5.addConstraint(Sketcher.Constraint("Equal", 11, 12))
sketch5.addConstraint(Sketcher.Constraint("Equal", 10, 13))
sketch5.addConstraint(Sketcher.Constraint("Equal", 12, 14))
sketch5.addConstraint(Sketcher.Constraint("Equal", 13, 15))
sketch5.addConstraint(Sketcher.Constraint("Equal", 14, 16))
sketch5.addConstraint(Sketcher.Constraint("Equal", 15, 17))
sketch5.addConstraint(Sketcher.Constraint("Equal", 16, 18))
sketch5.addConstraint(Sketcher.Constraint("Equal", 17, 19))
sketch5.addConstraint(Sketcher.Constraint("Equal", 18, 20))
sketch5.addConstraint(Sketcher.Constraint("Equal", 20, 21))
sketch5.addConstraint(Sketcher.Constraint("Equal", 19, 22))
sketch5.addConstraint(Sketcher.Constraint("Equal", 21, 23))
sketch5.addConstraint(Sketcher.Constraint("Equal", 22, 24))
sketch5.addConstraint(Sketcher.Constraint("Equal", 23, 25))
sketch5.addConstraint(Sketcher.Constraint("Equal", 24, 26))
sketch5.addConstraint(Sketcher.Constraint("Equal", 25, 27))
sketch5.addConstraint(Sketcher.Constraint("Equal", 26, 28))
sketch5.addConstraint(Sketcher.Constraint("Equal", 27, 29))
sketch5.addConstraint(Sketcher.Constraint("Equal", 29, 30))
sketch5.addConstraint(Sketcher.Constraint("Equal", 28, 31))
sketch5.addConstraint(Sketcher.Constraint("Equal", 30, 32))
sketch5.addConstraint(Sketcher.Constraint("Equal", 31, 33))
sketch5.addConstraint(Sketcher.Constraint("Equal", 33, 34))
sketch5.addConstraint(Sketcher.Constraint("Equal", 35, 36))
sketch5.addConstraint(Sketcher.Constraint("Equal", 34, 38))
sketch5.addConstraint(Sketcher.Constraint("Equal", 38, 39))
sketch5.addConstraint(Sketcher.Constraint("Equal", 39, 40))
sketch5.addConstraint(Sketcher.Constraint("Equal", 40, 41))
sketch5.addConstraint(Sketcher.Constraint("Equal", 41, 42))
sketch5.addConstraint(Sketcher.Constraint("Equal", 42, 43))
sketch5.addConstraint(Sketcher.Constraint("Equal", 43, 44))
sketch5.addConstraint(Sketcher.Constraint("Equal", 44, 45))
sketch5.addConstraint(Sketcher.Constraint("Equal", 45, 46))
sketch5.addConstraint(Sketcher.Constraint("Equal", 46, 47))
sketch5.addConstraint(Sketcher.Constraint("Equal", 47, 48))
sketch5.addConstraint(Sketcher.Constraint("Equal", 48, 49))
sketch5.addConstraint(Sketcher.Constraint("Equal", 49, 50))
sketch5.addConstraint(Sketcher.Constraint("Equal", 50, 51))
sketch5.addConstraint(Sketcher.Constraint("Equal", 51, 52))
sketch5.addConstraint(Sketcher.Constraint("Equal", 32, 53))
sketch5.addConstraint(Sketcher.Constraint("Equal", 53, 54))
sketch5.addConstraint(Sketcher.Constraint("Equal", 54, 55))
sketch5.addConstraint(Sketcher.Constraint("Equal", 55, 56))
sketch5.addConstraint(Sketcher.Constraint("Equal", 56, 57))
sketch5.addConstraint(Sketcher.Constraint("Equal", 57, 58))
sketch5.addConstraint(Sketcher.Constraint("Equal", 58, 59))
sketch5.addConstraint(Sketcher.Constraint("Equal", 59, 60))
sketch5.addConstraint(Sketcher.Constraint("Equal", 60, 61))
sketch5.addConstraint(Sketcher.Constraint("Equal", 61, 62))
sketch5.addConstraint(Sketcher.Constraint("Equal", 62, 63))
sketch5.addConstraint(Sketcher.Constraint("Equal", 63, 64))
sketch5.addConstraint(Sketcher.Constraint("Equal", 64, 65))
sketch5.addConstraint(Sketcher.Constraint("Equal", 37, 66))
sketch5.addConstraint(Sketcher.Constraint("Equal", 65, 67))
sketch5.addConstraint(Sketcher.Constraint("Equal", 67, 68))
sketch5.addConstraint(Sketcher.Constraint("Equal", 36, 69))
sketch5.addConstraint(Sketcher.Constraint("Equal", 69, 70))
sketch5.addConstraint(Sketcher.Constraint("Equal", 68, 71))
sketch5.addConstraint(Sketcher.Constraint("Equal", 71, 72))
sketch5.addConstraint(Sketcher.Constraint("Equal", 66, 73))
sketch5.addConstraint(Sketcher.Constraint("Equal", 73, 74))
sketch5.addConstraint(Sketcher.Constraint("Equal", 72, 75))
sketch5.addConstraint(Sketcher.Constraint("Horizontal", 1, 3, 38, 3))
sketch5.addConstraint(Sketcher.Constraint("Horizontal", 10, 3, 39, 3))
sketch5.addConstraint(Sketcher.Constraint("Horizontal", 8, 3, 40, 3))
sketch5.addConstraint(Sketcher.Constraint("Horizontal", 5, 3, 41, 3))
sketch5.addConstraint(Sketcher.Constraint("Horizontal", 3, 3, 42, 3))
sketch5.addConstraint(Sketcher.Constraint("Horizontal", 13, 3, 43, 3))
sketch5.addConstraint(Sketcher.Constraint("Horizontal", 15, 3, 44, 3))
sketch5.addConstraint(Sketcher.Constraint("Horizontal", 17, 3, 45, 3))
sketch5.addConstraint(Sketcher.Constraint("Horizontal", 19, 3, 46, 3))
sketch5.addConstraint(Sketcher.Constraint("Horizontal", 22, 3, 47, 3))
sketch5.addConstraint(Sketcher.Constraint("Horizontal", 24, 3, 48, 3))
sketch5.addConstraint(Sketcher.Constraint("Horizontal", 26, 3, 49, 3))
sketch5.addConstraint(Sketcher.Constraint("Horizontal", 28, 3, 50, 3))
sketch5.addConstraint(Sketcher.Constraint("Horizontal", 31, 3, 51, 3))
sketch5.addConstraint(Sketcher.Constraint("Horizontal", 35, 3, 69, 3))
sketch5.addConstraint(Sketcher.Constraint("Horizontal", 36, 3, 70, 3))
sketch5.addConstraint(Sketcher.Constraint("Vertical", 15, 3, 17, 3))
sketch5.addConstraint(Sketcher.Constraint("Vertical", 14, 3, 18, 3))
sketch5.addConstraint(Sketcher.Constraint("Vertical", 13, 3, 19, 3))
sketch5.addConstraint(Sketcher.Constraint("Vertical", 10, 3, 22, 3))
sketch5.addConstraint(Sketcher.Constraint("Vertical", 9, 3, 23, 3))
sketch5.addConstraint(Sketcher.Constraint("Vertical", 8, 3, 24, 3))
sketch5.addConstraint(Sketcher.Constraint("Vertical", 5, 3, 26, 3))
sketch5.addConstraint(Sketcher.Constraint("Vertical", 4, 3, 27, 3))
sketch5.addConstraint(Sketcher.Constraint("Vertical", 3, 3, 28, 3))
sketch5.addConstraint(Sketcher.Constraint("Vertical", 0, 3, 32, 3))
sketch5.addConstraint(Sketcher.Constraint("Vertical", 35, 3, 36, 3))
sketch5.addConstraint(Sketcher.Constraint("Vertical", 44, 3, 45, 3))
sketch5.addConstraint(Sketcher.Constraint("Vertical", 43, 3, 46, 3))
sketch5.addConstraint(Sketcher.Constraint("Vertical", 39, 3, 47, 3))
sketch5.addConstraint(Sketcher.Constraint("Vertical", 40, 3, 48, 3))
sketch5.addConstraint(Sketcher.Constraint("Vertical", 41, 3, 49, 3))
sketch5.addConstraint(Sketcher.Constraint("Vertical", 42, 3, 50, 3))
sketch5.addConstraint(Sketcher.Constraint("Vertical", 54, 3, 55, 3))
sketch5.addConstraint(Sketcher.Constraint("Vertical", 53, 3, 56, 3))
sketch5.addConstraint(Sketcher.Constraint("Vertical", 52, 3, 57, 3))
sketch5.addConstraint(Sketcher.Constraint("Vertical", 69, 3, 70, 3))
sketch5.addConstraint(Sketcher.Constraint("Diameter", 0, Q("3.6 mm")))
sketch5.addConstraint(Sketcher.Constraint("Diameter", 1, Q("3.4 mm")))
sketch5.addConstraint(Sketcher.Constraint("Diameter", 35, Q("3.5 mm")))
sketch5.addConstraint(Sketcher.Constraint("Diameter", 37, Q("3.2 mm")))
sketch5.addConstraint(Sketcher.Constraint("DistanceY", -1, 1, 19, 3, Q("44.112799 mm")))
sketch5.addConstraint(Sketcher.Constraint("DistanceY", -1, 1, 26, 3, Q("34.112799 mm")))
sketch5.addConstraint(Sketcher.Constraint("DistanceX", -1, 1, 39, 3, Q("45.216099 mm")))
sketch5.addConstraint(Sketcher.Constraint("DistanceY", -1, 1, 66, 3, Q("47.219101 mm")))
sketch5.addConstraint(Sketcher.Constraint("DistanceY", -1, 1, 67, 3, Q("47.564499 mm")))
sketch5.addConstraint(Sketcher.Constraint("DistanceX", -1, 1, 1, 3, Q("23.735971 mm")))
sketch5.addConstraint(Sketcher.Constraint("DistanceY", -1, 1, 1, 3, Q("69.856091 mm")))
sketch5.addConstraint(Sketcher.Constraint("DistanceY", -1, 1, 3, 3, Q("68.564048 mm")))
sketch5.addConstraint(Sketcher.Constraint("DistanceY", -1, 1, 5, 3, Q("66.473479 mm")))
sketch5.addConstraint(Sketcher.Constraint("DistanceX", -1, 1, 6, 3, Q("25.150959 mm")))
sketch5.addConstraint(Sketcher.Constraint("DistanceY", -1, 1, 6, 3, Q("56.896651 mm")))
sketch5.addConstraint(Sketcher.Constraint("DistanceX", -1, 1, 7, 3, Q("20.050012 mm")))
sketch5.addConstraint(Sketcher.Constraint("DistanceY", -1, 1, 8, 3, Q("63.675751 mm")))
sketch5.addConstraint(Sketcher.Constraint("DistanceY", -1, 1, 9, 3, Q("59.38381 mm")))
sketch5.addConstraint(Sketcher.Constraint("DistanceY", -1, 1, 10, 3, Q("60.293139 mm")))
sketch5.addConstraint(Sketcher.Constraint("DistanceY", -1, 1, 11, 3, Q("53.021779 mm")))
sketch5.addConstraint(Sketcher.Constraint("DistanceX", -1, 1, 13, 3, Q("8.874461 mm")))
sketch5.addConstraint(Sketcher.Constraint("DistanceY", -1, 1, 13, 3, Q("56.473479 mm")))
sketch5.addConstraint(Sketcher.Constraint("DistanceX", -1, 1, 16, 3, Q("16.22956 mm")))
sketch5.addConstraint(Sketcher.Constraint("DistanceY", -1, 1, 17, 3, Q("48.20257 mm")))
sketch5.addConstraint(Sketcher.Constraint("DistanceX", -1, 1, 20, 3, Q("21.292079 mm")))
sketch5.addConstraint(Sketcher.Constraint("DistanceX", -1, 1, 21, 3, Q("17.24291 mm")))
sketch5.addConstraint(Sketcher.Constraint("DistanceY", -1, 1, 22, 3, Q("40.293139 mm")))
sketch5.addConstraint(Sketcher.Constraint("DistanceY", -1, 1, 23, 3, Q("41.202468 mm")))
sketch5.addConstraint(Sketcher.Constraint("DistanceX", -1, 1, 25, 3, Q("20.087958 mm")))
sketch5.addConstraint(Sketcher.Constraint("DistanceY", -1, 1, 28, 3, Q("32.02223 mm")))
sketch5.addConstraint(Sketcher.Constraint("DistanceY", -1, 1, 32, 3, Q("34.91189 mm")))
sketch5.addConstraint(Sketcher.Constraint("DistanceX", -1, 1, 33, 3, Q("27.895591 mm")))
sketch5.addConstraint(Sketcher.Constraint("DistanceY", -1, 1, 33, 3, Q("30.293139 mm")))
sketch5.addConstraint(Sketcher.Constraint("DistanceY", -1, 1, 34, 3, Q("70.293139 mm")))
sketch5.addConstraint(Sketcher.Constraint("DistanceX", -1, 1, 35, 3, Q("6.895591 mm")))
sketch5.addConstraint(Sketcher.Constraint("DistanceY", -1, 1, 35, 3, Q("71.293139 mm")))
sketch5.addConstraint(Sketcher.Constraint("DistanceY", -1, 1, 36, 3, Q("29.293139 mm")))
sketch5.addConstraint(Sketcher.Constraint("DistanceY", -1, 1, 37, 3, Q("50.293139 mm")))
sketch5.addConstraint(Sketcher.Constraint("DistanceX", -1, 1, 38, 3, Q("32.055211 mm")))
sketch5.addConstraint(Sketcher.Constraint("DistanceX", -1, 1, 43, 3, Q("46.916721 mm")))
sketch5.addConstraint(Sketcher.Constraint("DistanceX", -1, 1, 44, 3, Q("47.786029 mm")))
sketch5.addConstraint(Sketcher.Constraint("DistanceX", -1, 1, 52, 3, Q("32.67484 mm")))
sketch5.addConstraint(Sketcher.Constraint("DistanceX", -1, 1, 54, 3, Q("42.02446 mm")))
sketch5.addConstraint(Sketcher.Constraint("DistanceY", -1, 1, 55, 3, Q("44.002561 mm")))
sketch5.addConstraint(Sketcher.Constraint("DistanceY", -1, 1, 56, 3, Q("38.799681 mm")))
sketch5.addConstraint(Sketcher.Constraint("DistanceX", -1, 1, 58, 3, Q("33.825809 mm")))
sketch5.addConstraint(Sketcher.Constraint("DistanceY", -1, 1, 59, 3, Q("57.07016 mm")))
sketch5.addConstraint(Sketcher.Constraint("DistanceX", -1, 1, 60, 3, Q("39.324071 mm")))
sketch5.addConstraint(Sketcher.Constraint("DistanceX", -1, 1, 64, 3, Q("30.624231 mm")))
sketch5.addConstraint(Sketcher.Constraint("DistanceY", -1, 1, 65, 3, Q("53.037771 mm")))
sketch5.addConstraint(Sketcher.Constraint("DistanceX", -1, 1, 66, 3, Q("27.89493 mm")))
sketch5.addConstraint(Sketcher.Constraint("DistanceX", -1, 1, 68, 3, Q("29.08552 mm")))
sketch5.addConstraint(Sketcher.Constraint("DistanceX", -1, 1, 69, 3, Q("48.895591 mm")))
sketch5.addConstraint(Sketcher.Constraint("DistanceX", -1, 1, 71, 3, Q("25.166951 mm")))
sketch5.addConstraint(Sketcher.Constraint("DistanceY", -1, 1, 72, 3, Q("61.903461 mm")))
sketch5.addConstraint(Sketcher.Constraint("DistanceX", -1, 1, 75, 3, Q("43.560039 mm")))
sketch5.addConstraint(Sketcher.Constraint("DistanceX", -1, 1, 0, 3, Q("26.278957 mm")))
sketch5.addConstraint(Sketcher.Constraint("DistanceY", -1, 1, 0, 3, Q("65.674388 mm")))
sketch5.addConstraint(Sketcher.Constraint("DistanceX", -1, 1, 2, 3, Q("24.226898 mm")))
sketch5.addConstraint(Sketcher.Constraint("DistanceY", -1, 1, 2, 3, Q("61.367326 mm")))
sketch5.addConstraint(Sketcher.Constraint("DistanceX", -1, 1, 3, 3, Q("19.760858 mm")))
sketch5.addConstraint(Sketcher.Constraint("DistanceX", -1, 1, 4, 3, Q("20.162604 mm")))
sketch5.addConstraint(Sketcher.Constraint("DistanceY", -1, 1, 4, 3, Q("63.687065 mm")))
sketch5.addConstraint(Sketcher.Constraint("DistanceX", -1, 1, 5, 3, Q("16.139886 mm")))
sketch5.addConstraint(Sketcher.Constraint("DistanceY", -1, 1, 7, 3, Q("58.927016 mm")))
sketch5.addConstraint(Sketcher.Constraint("DistanceX", -1, 1, 8, 3, Q("13.032694 mm")))
sketch5.addConstraint(Sketcher.Constraint("DistanceX", -1, 1, 9, 3, Q("15.383356 mm")))
sketch5.addConstraint(Sketcher.Constraint("DistanceX", -1, 1, 10, 3, Q("10.575083 mm")))
sketch5.addConstraint(Sketcher.Constraint("DistanceX", -1, 1, 11, 3, Q("21.285455 mm")))
sketch5.addConstraint(Sketcher.Constraint("DistanceX", -1, 1, 12, 3, Q("17.222152 mm")))
sketch5.addConstraint(Sketcher.Constraint("DistanceY", -1, 1, 12, 3, Q("55.002134 mm")))
sketch5.addConstraint(Sketcher.Constraint("DistanceX", -1, 1, 14, 3, Q("12.767587 mm")))
sketch5.addConstraint(Sketcher.Constraint("DistanceY", -1, 1, 14, 3, Q("53.508696 mm")))
sketch5.addConstraint(Sketcher.Constraint("DistanceX", -1, 1, 15, 3, Q("8.005153 mm")))
sketch5.addConstraint(Sketcher.Constraint("DistanceY", -1, 1, 15, 3, Q("52.383708 mm")))
sketch5.addConstraint(Sketcher.Constraint("DistanceY", -1, 1, 16, 3, Q("50.267554 mm")))
sketch5.addConstraint(Sketcher.Constraint("DistanceY", -1, 1, 18, 3, Q("47.077582 mm")))
sketch5.addConstraint(Sketcher.Constraint("DistanceY", -1, 1, 20, 3, Q("47.548507 mm")))
sketch5.addConstraint(Sketcher.Constraint("DistanceY", -1, 1, 21, 3, Q("45.537373 mm")))
sketch5.addConstraint(Sketcher.Constraint("DistanceY", -1, 1, 24, 3, Q("36.910527 mm")))
sketch5.addConstraint(Sketcher.Constraint("DistanceY", -1, 1, 25, 3, Q("41.624933 mm")))
sketch5.addConstraint(Sketcher.Constraint("DistanceY", -1, 1, 27, 3, Q("36.899213 mm")))
sketch5.addConstraint(Sketcher.Constraint("DistanceX", -1, 1, 29, 3, Q("30.640223 mm")))
sketch5.addConstraint(Sketcher.Constraint("DistanceY", -1, 1, 29, 3, Q("43.689627 mm")))
sketch5.addConstraint(Sketcher.Constraint("DistanceX", -1, 1, 30, 3, Q("24.275508 mm")))
sketch5.addConstraint(Sketcher.Constraint("DistanceY", -1, 1, 30, 3, Q("39.202966 mm")))
sketch5.addConstraint(Sketcher.Constraint("DistanceX", -1, 1, 31, 3, Q("23.737357 mm")))
sketch5.addConstraint(Sketcher.Constraint("DistanceY", -1, 1, 31, 3, Q("30.730187 mm")))
sketch5.addConstraint(Sketcher.Constraint("DistanceX", -1, 1, 34, 3, Q("27.894235 mm")))
sketch5.addConstraint(Sketcher.Constraint("DistanceX", -1, 1, 37, 3, Q("24.821553 mm")))
sketch5.addConstraint(Sketcher.Constraint("DistanceX", -1, 1, 40, 3, Q("42.758488 mm")))
sketch5.addConstraint(Sketcher.Constraint("DistanceX", -1, 1, 41, 3, Q("39.651296 mm")))
sketch5.addConstraint(Sketcher.Constraint("DistanceX", -1, 1, 42, 3, Q("36.030324 mm")))
sketch5.addConstraint(Sketcher.Constraint("DistanceX", -1, 1, 51, 3, Q("32.053825 mm")))
sketch5.addConstraint(Sketcher.Constraint("DistanceY", -1, 1, 52, 3, Q("65.002154 mm")))
sketch5.addConstraint(Sketcher.Constraint("DistanceX", -1, 1, 53, 3, Q("38.244347 mm")))
sketch5.addConstraint(Sketcher.Constraint("DistanceY", -1, 1, 53, 3, Q("61.786597 mm")))
sketch5.addConstraint(Sketcher.Constraint("DistanceY", -1, 1, 54, 3, Q("56.583717 mm")))
sketch5.addConstraint(Sketcher.Constraint("DistanceY", -1, 1, 57, 3, Q("35.584124 mm")))
sketch5.addConstraint(Sketcher.Constraint("DistanceY", -1, 1, 58, 3, Q("60.339504 mm")))
sketch5.addConstraint(Sketcher.Constraint("DistanceX", -1, 1, 59, 3, Q("37.391323 mm")))
sketch5.addConstraint(Sketcher.Constraint("DistanceY", -1, 1, 60, 3, Q("52.635527 mm")))
sketch5.addConstraint(Sketcher.Constraint("DistanceX", -1, 1, 61, 3, Q("39.291724 mm")))
sketch5.addConstraint(Sketcher.Constraint("DistanceY", -1, 1, 61, 3, Q("47.798126 mm")))
sketch5.addConstraint(Sketcher.Constraint("DistanceX", -1, 1, 62, 3, Q("37.299843 mm")))
sketch5.addConstraint(Sketcher.Constraint("DistanceY", -1, 1, 62, 3, Q("43.389736 mm")))
sketch5.addConstraint(Sketcher.Constraint("DistanceX", -1, 1, 63, 3, Q("33.690928 mm")))
sketch5.addConstraint(Sketcher.Constraint("DistanceY", -1, 1, 63, 3, Q("40.168367 mm")))
sketch5.addConstraint(Sketcher.Constraint("DistanceY", -1, 1, 64, 3, Q("56.903275 mm")))
sketch5.addConstraint(Sketcher.Constraint("DistanceX", -1, 1, 65, 3, Q("34.499103 mm")))
sketch5.addConstraint(Sketcher.Constraint("DistanceX", -1, 1, 67, 3, Q("34.505727 mm")))
sketch5.addConstraint(Sketcher.Constraint("DistanceY", -1, 1, 68, 3, Q("38.687925 mm")))
sketch5.addConstraint(Sketcher.Constraint("DistanceY", -1, 1, 71, 3, Q("43.683003 mm")))
sketch5.addConstraint(Sketcher.Constraint("DistanceX", -1, 1, 72, 3, Q("29.034605 mm")))
sketch5.addConstraint(Sketcher.Constraint("DistanceX", -1, 1, 73, 3, Q("28.068774 mm")))
sketch5.addConstraint(Sketcher.Constraint("DistanceY", -1, 1, 73, 3, Q("53.405946 mm")))
sketch5.addConstraint(Sketcher.Constraint("DistanceX", -1, 1, 74, 3, Q("30.911116 mm")))
sketch5.addConstraint(Sketcher.Constraint("DistanceY", -1, 1, 74, 3, Q("50.323947 mm")))
sketch5.addConstraint(Sketcher.Constraint("DistanceY", -1, 1, 75, 3, Q("50.235976 mm")))
pocket3 = body.newObject("PartDesign::Pocket", "Pocket002")
pocket3.Profile = sketch5
pocket3.Length = 5
pocket3.Reversed = True

doc.recompute()
